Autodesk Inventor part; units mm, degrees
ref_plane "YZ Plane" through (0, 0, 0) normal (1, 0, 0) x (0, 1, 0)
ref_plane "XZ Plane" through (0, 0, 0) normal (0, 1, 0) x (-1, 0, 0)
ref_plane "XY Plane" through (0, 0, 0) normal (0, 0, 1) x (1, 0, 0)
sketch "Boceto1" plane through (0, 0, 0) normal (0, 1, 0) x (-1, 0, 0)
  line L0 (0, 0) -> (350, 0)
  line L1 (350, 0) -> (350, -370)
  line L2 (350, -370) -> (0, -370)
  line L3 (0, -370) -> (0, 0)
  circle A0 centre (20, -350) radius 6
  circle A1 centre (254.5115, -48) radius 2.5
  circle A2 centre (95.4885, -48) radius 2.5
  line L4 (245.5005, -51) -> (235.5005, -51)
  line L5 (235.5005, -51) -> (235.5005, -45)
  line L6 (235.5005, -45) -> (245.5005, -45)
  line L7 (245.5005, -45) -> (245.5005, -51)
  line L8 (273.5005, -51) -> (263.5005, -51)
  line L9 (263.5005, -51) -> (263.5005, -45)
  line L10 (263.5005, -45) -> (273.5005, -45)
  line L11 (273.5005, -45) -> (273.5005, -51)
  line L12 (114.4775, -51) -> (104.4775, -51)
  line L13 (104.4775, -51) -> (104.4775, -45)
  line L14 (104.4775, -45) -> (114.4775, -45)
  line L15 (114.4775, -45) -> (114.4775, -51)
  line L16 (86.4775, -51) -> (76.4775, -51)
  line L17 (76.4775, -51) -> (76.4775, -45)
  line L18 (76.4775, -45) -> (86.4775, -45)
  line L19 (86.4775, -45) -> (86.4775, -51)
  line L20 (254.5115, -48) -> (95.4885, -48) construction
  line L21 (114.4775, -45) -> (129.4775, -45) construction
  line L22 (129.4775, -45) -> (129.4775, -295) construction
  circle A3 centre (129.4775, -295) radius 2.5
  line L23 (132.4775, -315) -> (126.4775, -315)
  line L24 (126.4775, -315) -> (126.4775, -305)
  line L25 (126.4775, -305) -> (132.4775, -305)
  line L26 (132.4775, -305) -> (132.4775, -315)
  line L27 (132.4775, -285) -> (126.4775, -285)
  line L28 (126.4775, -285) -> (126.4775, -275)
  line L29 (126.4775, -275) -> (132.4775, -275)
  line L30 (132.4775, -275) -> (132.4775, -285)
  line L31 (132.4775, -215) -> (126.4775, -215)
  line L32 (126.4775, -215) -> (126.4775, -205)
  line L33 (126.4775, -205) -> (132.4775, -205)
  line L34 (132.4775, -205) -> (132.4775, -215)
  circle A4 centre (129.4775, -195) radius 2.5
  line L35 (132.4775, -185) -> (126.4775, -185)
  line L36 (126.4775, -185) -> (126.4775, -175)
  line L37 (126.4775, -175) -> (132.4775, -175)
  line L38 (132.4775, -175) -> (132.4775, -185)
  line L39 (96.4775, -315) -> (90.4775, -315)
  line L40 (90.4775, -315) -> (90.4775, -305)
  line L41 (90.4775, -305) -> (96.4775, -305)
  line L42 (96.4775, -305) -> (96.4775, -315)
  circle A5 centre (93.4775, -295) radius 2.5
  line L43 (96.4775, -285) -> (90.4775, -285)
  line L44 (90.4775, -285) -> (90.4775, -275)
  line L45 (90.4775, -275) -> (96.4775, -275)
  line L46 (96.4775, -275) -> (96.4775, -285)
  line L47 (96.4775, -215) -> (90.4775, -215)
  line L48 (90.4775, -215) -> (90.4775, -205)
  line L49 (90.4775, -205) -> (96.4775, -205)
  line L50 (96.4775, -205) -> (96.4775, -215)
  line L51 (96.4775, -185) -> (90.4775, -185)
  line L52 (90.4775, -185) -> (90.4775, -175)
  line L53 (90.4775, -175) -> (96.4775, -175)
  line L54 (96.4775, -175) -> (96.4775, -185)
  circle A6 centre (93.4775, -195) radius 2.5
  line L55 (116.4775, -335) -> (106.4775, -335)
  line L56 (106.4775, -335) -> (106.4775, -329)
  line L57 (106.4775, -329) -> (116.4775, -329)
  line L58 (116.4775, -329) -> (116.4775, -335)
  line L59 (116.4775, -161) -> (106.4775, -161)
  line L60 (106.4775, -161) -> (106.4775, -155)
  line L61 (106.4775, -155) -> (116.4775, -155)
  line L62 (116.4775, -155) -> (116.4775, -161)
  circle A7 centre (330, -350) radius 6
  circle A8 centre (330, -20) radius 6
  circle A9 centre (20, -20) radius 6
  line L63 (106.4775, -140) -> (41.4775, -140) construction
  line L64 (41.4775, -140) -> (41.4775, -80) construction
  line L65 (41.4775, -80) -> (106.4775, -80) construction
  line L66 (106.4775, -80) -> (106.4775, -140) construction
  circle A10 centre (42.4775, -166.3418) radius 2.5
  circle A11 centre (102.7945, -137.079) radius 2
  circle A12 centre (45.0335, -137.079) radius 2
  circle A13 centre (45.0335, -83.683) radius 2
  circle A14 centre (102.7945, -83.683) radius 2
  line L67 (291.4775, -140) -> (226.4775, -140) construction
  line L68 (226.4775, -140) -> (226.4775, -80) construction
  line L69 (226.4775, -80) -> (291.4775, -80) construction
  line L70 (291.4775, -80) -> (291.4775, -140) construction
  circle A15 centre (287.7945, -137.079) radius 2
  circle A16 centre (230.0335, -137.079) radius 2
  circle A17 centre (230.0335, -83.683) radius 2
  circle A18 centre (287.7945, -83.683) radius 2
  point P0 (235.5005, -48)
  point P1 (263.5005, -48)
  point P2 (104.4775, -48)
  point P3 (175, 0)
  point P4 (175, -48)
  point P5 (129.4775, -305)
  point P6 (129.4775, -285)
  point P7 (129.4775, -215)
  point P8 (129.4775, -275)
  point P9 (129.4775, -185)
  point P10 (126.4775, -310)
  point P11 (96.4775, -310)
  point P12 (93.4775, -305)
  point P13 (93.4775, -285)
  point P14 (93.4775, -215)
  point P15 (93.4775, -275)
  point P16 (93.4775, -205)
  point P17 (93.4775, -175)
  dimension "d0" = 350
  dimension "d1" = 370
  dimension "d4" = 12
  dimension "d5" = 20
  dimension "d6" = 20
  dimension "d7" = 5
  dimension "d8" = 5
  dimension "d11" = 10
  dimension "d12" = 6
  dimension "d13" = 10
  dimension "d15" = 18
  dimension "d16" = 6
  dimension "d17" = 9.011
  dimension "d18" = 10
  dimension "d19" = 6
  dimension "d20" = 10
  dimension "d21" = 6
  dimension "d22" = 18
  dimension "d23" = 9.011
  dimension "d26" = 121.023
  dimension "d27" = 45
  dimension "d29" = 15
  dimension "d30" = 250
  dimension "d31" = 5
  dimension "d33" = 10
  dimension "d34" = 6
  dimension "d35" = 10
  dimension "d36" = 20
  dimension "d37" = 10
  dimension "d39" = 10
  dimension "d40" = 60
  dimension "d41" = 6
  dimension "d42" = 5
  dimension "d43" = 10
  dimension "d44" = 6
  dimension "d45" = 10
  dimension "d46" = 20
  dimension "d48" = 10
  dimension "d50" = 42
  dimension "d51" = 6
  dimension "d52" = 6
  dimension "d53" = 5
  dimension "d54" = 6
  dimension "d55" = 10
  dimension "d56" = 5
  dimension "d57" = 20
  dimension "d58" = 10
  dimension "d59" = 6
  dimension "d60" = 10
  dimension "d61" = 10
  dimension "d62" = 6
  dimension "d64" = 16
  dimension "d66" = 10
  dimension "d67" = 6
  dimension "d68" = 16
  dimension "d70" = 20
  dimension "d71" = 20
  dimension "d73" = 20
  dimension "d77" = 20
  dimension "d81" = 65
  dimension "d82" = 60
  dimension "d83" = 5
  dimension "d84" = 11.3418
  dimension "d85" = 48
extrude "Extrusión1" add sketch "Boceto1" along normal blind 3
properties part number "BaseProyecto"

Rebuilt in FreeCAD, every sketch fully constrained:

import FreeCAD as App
import Part
import Sketcher

V = App.Vector

doc = App.newDocument("Part")
body = doc.addObject("PartDesign::Body", "Body")

sketch1 = doc.addObject("Sketcher::SketchObject", "Sketch")
body.addObject(sketch1)
sketch1.AttachmentSupport = (doc.XZ_Plane, [""])
sketch1.MapMode = "FlatFace"
sketch1.addGeometry([
    Part.LineSegment(V(-350, 0, 0), V(0, 0, 0)),
    Part.LineSegment(V(0, 0, 0), V(0, -370, 0)),
    Part.LineSegment(V(0, -370, 0), V(-350, -370, 0)),
    Part.LineSegment(V(-350, -370, 0), V(-350, 0, 0)),
    Part.Circle(V(-20, -350, 0), V(0, 0, 1), 6),
    Part.LineSegment(V(-116.5, -329, 0), V(-116.5, -335, 0)),
    Part.LineSegment(V(-116.5, -335, 0), V(-106.5, -335, 0)),
    Part.LineSegment(V(-106.5, -335, 0), V(-106.5, -329, 0)),
    Part.LineSegment(V(-106.5, -329, 0), V(-116.5, -329, 0)),
    Part.LineSegment(V(-96.5, -305, 0), V(-96.5, -315, 0)),
    Part.LineSegment(V(-96.5, -315, 0), V(-90.5, -315, 0)),
    Part.LineSegment(V(-90.5, -315, 0), V(-90.5, -305, 0)),
    Part.LineSegment(V(-90.5, -305, 0), V(-96.5, -305, 0)),
    Part.LineSegment(V(-132.5, -305, 0), V(-132.5, -315, 0)),
    Part.LineSegment(V(-132.5, -315, 0), V(-126.5, -315, 0)),
    Part.LineSegment(V(-126.5, -315, 0), V(-126.5, -305, 0)),
    Part.LineSegment(V(-126.5, -305, 0), V(-132.5, -305, 0)),
    Part.Circle(V(-93.5, -295, 0), V(0, 0, 1), 2.5),
    Part.LineSegment(V(-96.5, -275, 0), V(-96.5, -285, 0)),
    Part.LineSegment(V(-96.5, -285, 0), V(-90.5, -285, 0)),
    Part.LineSegment(V(-90.5, -285, 0), V(-90.5, -275, 0)),
    Part.LineSegment(V(-90.5, -275, 0), V(-96.5, -275, 0)),
    Part.Circle(V(-129.5, -295, 0), V(0, 0, 1), 2.5),
    Part.LineSegment(V(-132.5, -275, 0), V(-132.5, -285, 0)),
    Part.LineSegment(V(-132.5, -285, 0), V(-126.5, -285, 0)),
    Part.LineSegment(V(-126.5, -285, 0), V(-126.5, -275, 0)),
    Part.LineSegment(V(-126.5, -275, 0), V(-132.5, -275, 0)),
    Part.LineSegment(V(-96.5, -205, 0), V(-96.5, -215, 0)),
    Part.LineSegment(V(-96.5, -215, 0), V(-90.5, -215, 0)),
    Part.LineSegment(V(-90.5, -215, 0), V(-90.5, -205, 0)),
    Part.LineSegment(V(-90.5, -205, 0), V(-96.5, -205, 0)),
    Part.LineSegment(V(-132.5, -205, 0), V(-132.5, -215, 0)),
    Part.LineSegment(V(-132.5, -215, 0), V(-126.5, -215, 0)),
    Part.LineSegment(V(-126.5, -215, 0), V(-126.5, -205, 0)),
    Part.LineSegment(V(-126.5, -205, 0), V(-132.5, -205, 0)),
    Part.Circle(V(-93.5, -195, 0), V(0, 0, 1), 2.5),
    Part.Circle(V(-129.5, -195, 0), V(0, 0, 1), 2.5),
    Part.Circle(V(-330, -350, 0), V(0, 0, 1), 6),
    Part.Circle(V(-42.5, -166.3, 0), V(0, 0, 1), 2.5),
    Part.Circle(V(-45, -137.1, 0), V(0, 0, 1), 2),
    Part.LineSegment(V(-96.5, -175, 0), V(-96.5, -185, 0)),
    Part.LineSegment(V(-96.5, -185, 0), V(-90.5, -185, 0)),
    Part.LineSegment(V(-90.5, -185, 0), V(-90.5, -175, 0)),
    Part.LineSegment(V(-90.5, -175, 0), V(-96.5, -175, 0)),
    Part.LineSegment(V(-132.5, -175, 0), V(-132.5, -185, 0)),
    Part.LineSegment(V(-132.5, -185, 0), V(-126.5, -185, 0)),
    Part.LineSegment(V(-126.5, -185, 0), V(-126.5, -175, 0)),
    Part.LineSegment(V(-126.5, -175, 0), V(-132.5, -175, 0)),
    Part.LineSegment(V(-116.5, -155, 0), V(-116.5, -161, 0)),
    Part.LineSegment(V(-116.5, -161, 0), V(-106.5, -161, 0)),
    Part.LineSegment(V(-106.5, -161, 0), V(-106.5, -155, 0)),
    Part.LineSegment(V(-106.5, -155, 0), V(-116.5, -155, 0)),
    Part.Circle(V(-102.8, -137.1, 0), V(0, 0, 1), 2),
    Part.Circle(V(-45, -83.7, 0), V(0, 0, 1), 2),
    Part.LineSegment(V(-86.5, -45, 0), V(-86.5, -51, 0)),
    Part.LineSegment(V(-86.5, -51, 0), V(-76.5, -51, 0)),
    Part.LineSegment(V(-76.5, -51, 0), V(-76.5, -45, 0)),
    Part.LineSegment(V(-76.5, -45, 0), V(-86.5, -45, 0)),
    Part.Circle(V(-20, -20, 0), V(0, 0, 1), 6),
    Part.Circle(V(-102.8, -83.7, 0), V(0, 0, 1), 2),
    Part.Circle(V(-95.5, -48, 0), V(0, 0, 1), 2.5),
    Part.LineSegment(V(-114.5, -45, 0), V(-114.5, -51, 0)),
    Part.LineSegment(V(-114.5, -51, 0), V(-104.5, -51, 0)),
    Part.LineSegment(V(-104.5, -51, 0), V(-104.5, -45, 0)),
    Part.LineSegment(V(-104.5, -45, 0), V(-114.5, -45, 0)),
    Part.Circle(V(-230, -137.1, 0), V(0, 0, 1), 2),
    Part.Circle(V(-287.8, -137.1, 0), V(0, 0, 1), 2),
    Part.Circle(V(-230, -83.7, 0), V(0, 0, 1), 2),
    Part.LineSegment(V(-245.5, -45, 0), V(-245.5, -51, 0)),
    Part.LineSegment(V(-245.5, -51, 0), V(-235.5, -51, 0)),
    Part.LineSegment(V(-235.5, -51, 0), V(-235.5, -45, 0)),
    Part.LineSegment(V(-235.5, -45, 0), V(-245.5, -45, 0)),
    Part.Circle(V(-254.5, -48, 0), V(0, 0, 1), 2.5),
    Part.Circle(V(-287.8, -83.7, 0), V(0, 0, 1), 2),
    Part.LineSegment(V(-273.5, -45, 0), V(-273.5, -51, 0)),
    Part.LineSegment(V(-273.5, -51, 0), V(-263.5, -51, 0)),
    Part.LineSegment(V(-263.5, -51, 0), V(-263.5, -45, 0)),
    Part.LineSegment(V(-263.5, -45, 0), V(-273.5, -45, 0)),
    Part.Circle(V(-330, -20, 0), V(0, 0, 1), 6),
], False)
sketch1.addConstraint([
    Sketcher.Constraint("Coincident", 0, 2, 1, 1),
    Sketcher.Constraint("Coincident", 1, 2, 2, 1),
    Sketcher.Constraint("Coincident", 2, 2, 3, 1),
    Sketcher.Constraint("Coincident", 3, 2, 0, 1),
    Sketcher.Constraint("Coincident", 5, 2, 6, 1),
    Sketcher.Constraint("Coincident", 6, 2, 7, 1),
    Sketcher.Constraint("Coincident", 7, 2, 8, 1),
    Sketcher.Constraint("Coincident", 8, 2, 5, 1),
    Sketcher.Constraint("Coincident", 9, 2, 10, 1),
    Sketcher.Constraint("Coincident", 10, 2, 11, 1),
    Sketcher.Constraint("Coincident", 11, 2, 12, 1),
    Sketcher.Constraint("Coincident", 12, 2, 9, 1),
    Sketcher.Constraint("Coincident", 13, 2, 14, 1),
    Sketcher.Constraint("Coincident", 14, 2, 15, 1),
    Sketcher.Constraint("Coincident", 15, 2, 16, 1),
    Sketcher.Constraint("Coincident", 16, 2, 13, 1),
    Sketcher.Constraint("Coincident", 18, 2, 19, 1),
    Sketcher.Constraint("Coincident", 19, 2, 20, 1),
    Sketcher.Constraint("Coincident", 20, 2, 21, 1),
    Sketcher.Constraint("Coincident", 21, 2, 18, 1),
    Sketcher.Constraint("Coincident", 23, 2, 24, 1),
    Sketcher.Constraint("Coincident", 24, 2, 25, 1),
    Sketcher.Constraint("Coincident", 25, 2, 26, 1),
    Sketcher.Constraint("Coincident", 26, 2, 23, 1),
    Sketcher.Constraint("Coincident", 27, 2, 28, 1),
    Sketcher.Constraint("Coincident", 28, 2, 29, 1),
    Sketcher.Constraint("Coincident", 29, 2, 30, 1),
    Sketcher.Constraint("Coincident", 30, 2, 27, 1),
    Sketcher.Constraint("Coincident", 31, 2, 32, 1),
    Sketcher.Constraint("Coincident", 32, 2, 33, 1),
    Sketcher.Constraint("Coincident", 33, 2, 34, 1),
    Sketcher.Constraint("Coincident", 34, 2, 31, 1),
    Sketcher.Constraint("Coincident", 40, 2, 41, 1),
    Sketcher.Constraint("Coincident", 41, 2, 42, 1),
    Sketcher.Constraint("Coincident", 42, 2, 43, 1),
    Sketcher.Constraint("Coincident", 43, 2, 40, 1),
    Sketcher.Constraint("Coincident", 44, 2, 45, 1),
    Sketcher.Constraint("Coincident", 45, 2, 46, 1),
    Sketcher.Constraint("Coincident", 46, 2, 47, 1),
    Sketcher.Constraint("Coincident", 47, 2, 44, 1),
    Sketcher.Constraint("Coincident", 48, 2, 49, 1),
    Sketcher.Constraint("Coincident", 49, 2, 50, 1),
    Sketcher.Constraint("Coincident", 50, 2, 51, 1),
    Sketcher.Constraint("Coincident", 51, 2, 48, 1),
    Sketcher.Constraint("Coincident", 54, 2, 55, 1),
    Sketcher.Constraint("Coincident", 55, 2, 56, 1),
    Sketcher.Constraint("Coincident", 56, 2, 57, 1),
    Sketcher.Constraint("Coincident", 57, 2, 54, 1),
    Sketcher.Constraint("Coincident", 61, 2, 62, 1),
    Sketcher.Constraint("Coincident", 62, 2, 63, 1),
    Sketcher.Constraint("Coincident", 63, 2, 64, 1),
    Sketcher.Constraint("Coincident", 64, 2, 61, 1),
    Sketcher.Constraint("Coincident", 68, 2, 69, 1),
    Sketcher.Constraint("Coincident", 69, 2, 70, 1),
    Sketcher.Constraint("Coincident", 70, 2, 71, 1),
    Sketcher.Constraint("Coincident", 71, 2, 68, 1),
    Sketcher.Constraint("Coincident", 74, 2, 75, 1),
    Sketcher.Constraint("Coincident", 75, 2, 76, 1),
    Sketcher.Constraint("Coincident", 76, 2, 77, 1),
    Sketcher.Constraint("Coincident", 77, 2, 74, 1),
    Sketcher.Constraint("Horizontal", 0),
    Sketcher.Constraint("Vertical", 1),
    Sketcher.Constraint("Horizontal", 2),
    Sketcher.Constraint("Vertical", 3),
    Sketcher.Constraint("Vertical", 5),
    Sketcher.Constraint("Horizontal", 6),
    Sketcher.Constraint("Vertical", 7),
    Sketcher.Constraint("Horizontal", 8),
    Sketcher.Constraint("Vertical", 9),
    Sketcher.Constraint("Horizontal", 10),
    Sketcher.Constraint("Vertical", 11),
    Sketcher.Constraint("Horizontal", 12),
    Sketcher.Constraint("Vertical", 13),
    Sketcher.Constraint("Horizontal", 14),
    Sketcher.Constraint("Vertical", 15),
    Sketcher.Constraint("Horizontal", 16),
    Sketcher.Constraint("Vertical", 18),
    Sketcher.Constraint("Horizontal", 19),
    Sketcher.Constraint("Vertical", 20),
    Sketcher.Constraint("Horizontal", 21),
    Sketcher.Constraint("Vertical", 23),
    Sketcher.Constraint("Horizontal", 24),
    Sketcher.Constraint("Vertical", 25),
    Sketcher.Constraint("Horizontal", 26),
    Sketcher.Constraint("Vertical", 27),
    Sketcher.Constraint("Horizontal", 28),
    Sketcher.Constraint("Vertical", 29),
    Sketcher.Constraint("Horizontal", 30),
    Sketcher.Constraint("Vertical", 31),
    Sketcher.Constraint("Horizontal", 32),
    Sketcher.Constraint("Vertical", 33),
    Sketcher.Constraint("Horizontal", 34),
    Sketcher.Constraint("Vertical", 40),
    Sketcher.Constraint("Horizontal", 41),
    Sketcher.Constraint("Vertical", 42),
    Sketcher.Constraint("Horizontal", 43),
    Sketcher.Constraint("Vertical", 44),
    Sketcher.Constraint("Horizontal", 45),
    Sketcher.Constraint("Vertical", 46),
    Sketcher.Constraint("Horizontal", 47),
    Sketcher.Constraint("Vertical", 48),
    Sketcher.Constraint("Horizontal", 49),
    Sketcher.Constraint("Vertical", 50),
    Sketcher.Constraint("Horizontal", 51),
    Sketcher.Constraint("Vertical", 54),
    Sketcher.Constraint("Horizontal", 55),
    Sketcher.Constraint("Vertical", 56),
    Sketcher.Constraint("Horizontal", 57),
    Sketcher.Constraint("Vertical", 61),
    Sketcher.Constraint("Horizontal", 62),
    Sketcher.Constraint("Vertical", 63),
    Sketcher.Constraint("Horizontal", 64),
    Sketcher.Constraint("Vertical", 68),
    Sketcher.Constraint("Horizontal", 69),
    Sketcher.Constraint("Vertical", 70),
    Sketcher.Constraint("Horizontal", 71),
    Sketcher.Constraint("Vertical", 74),
    Sketcher.Constraint("Horizontal", 75),
    Sketcher.Constraint("Vertical", 76),
    Sketcher.Constraint("Horizontal", 77),
    Sketcher.Constraint("Coincident", 0, 2, -1, 1),
    Sketcher.Constraint("Equal", 17, 22),
    Sketcher.Constraint("Equal", 22, 35),
    Sketcher.Constraint("Equal", 35, 36),
    Sketcher.Constraint("Equal", 4, 37),
    Sketcher.Constraint("Equal", 36, 38),
    Sketcher.Constraint("Equal", 39, 52),
    Sketcher.Constraint("Equal", 52, 53),
    Sketcher.Constraint("Equal", 37, 58),
    Sketcher.Constraint("Equal", 53, 59),
    Sketcher.Constraint("Equal", 38, 60),
    Sketcher.Constraint("Equal", 59, 65),
    Sketcher.Constraint("Equal", 65, 66),
    Sketcher.Constraint("Equal", 66, 67),
    Sketcher.Constraint("Equal", 60, 72),
    Sketcher.Constraint("Equal", 67, 73),
    Sketcher.Constraint("Equal", 58, 78),
    Sketcher.Constraint("Horizontal", 17, 3, 22, 3),
    Sketcher.Constraint("Horizontal", 35, 3, 36, 3),
    Sketcher.Constraint("Horizontal", 4, 3, 37, 3),
    Sketcher.Constraint("Horizontal", 39, 3, 52, 3),
    Sketcher.Constraint("Horizontal", 53, 3, 59, 3),
    Sketcher.Constraint("Horizontal", 52, 3, 65, 3),
    Sketcher.Constraint("Horizontal", 65, 3, 66, 3),
    Sketcher.Constraint("Horizontal", 59, 3, 67, 3),
    Sketcher.Constraint("Horizontal", 60, 3, 72, 3),
    Sketcher.Constraint("Horizontal", 67, 3, 73, 3),
    Sketcher.Constraint("Horizontal", 58, 3, 78, 3),
    Sketcher.Constraint("Horizontal", 10, 2, 13, 2),
    Sketcher.Constraint("Horizontal", 12, 2, 15, 2),
    Sketcher.Constraint("Horizontal", 19, 2, 23, 2),
    Sketcher.Constraint("Horizontal", 21, 2, 25, 2),
    Sketcher.Constraint("Horizontal", 28, 2, 31, 2),
    Sketcher.Constraint("Horizontal", 30, 2, 33, 2),
    Sketcher.Constraint("Horizontal", 41, 2, 44, 2),
    Sketcher.Constraint("Horizontal", 43, 2, 46, 2),
    Sketcher.Constraint("Horizontal", 55, 2, 61, 2),
    Sketcher.Constraint("Horizontal", 57, 2, 63, 2),
    Sketcher.Constraint("Horizontal", 62, 2, 68, 2),
    Sketcher.Constraint("Horizontal", 64, 2, 70, 2),
    Sketcher.Constraint("Horizontal", 69, 2, 74, 2),
    Sketcher.Constraint("Horizontal", 71, 2, 76, 2),
    Sketcher.Constraint("Vertical", 17, 3, 35, 3),
    Sketcher.Constraint("Vertical", 22, 3, 36, 3),
    Sketcher.Constraint("Vertical", 39, 3, 53, 3),
    Sketcher.Constraint("Vertical", 4, 3, 58, 3),
    Sketcher.Constraint("Vertical", 52, 3, 59, 3),
    Sketcher.Constraint("Vertical", 65, 3, 67, 3),
    Sketcher.Constraint("Vertical", 66, 3, 73, 3),
    Sketcher.Constraint("Vertical", 37, 3, 78, 3),
    Sketcher.Constraint("Vertical", 12, 2, 18, 2),
    Sketcher.Constraint("Vertical", 11, 2, 19, 2),
    Sketcher.Constraint("Vertical", 16, 2, 23, 2),
    Sketcher.Constraint("Vertical", 15, 2, 24, 2),
    Sketcher.Constraint("Vertical", 21, 2, 27, 2),
    Sketcher.Constraint("Vertical", 20, 2, 28, 2),
    Sketcher.Constraint("Vertical", 26, 2, 31, 2),
    Sketcher.Constraint("Vertical", 25, 2, 32, 2),
    Sketcher.Constraint("Vertical", 30, 2, 40, 2),
    Sketcher.Constraint("Vertical", 29, 2, 41, 2),
    Sketcher.Constraint("Vertical", 34, 2, 44, 2),
    Sketcher.Constraint("Vertical", 33, 2, 45, 2),
    Sketcher.Constraint("Vertical", 8, 2, 48, 2),
    Sketcher.Constraint("Vertical", 7, 2, 49, 2),
    Sketcher.Constraint("Equal", 12, 14),
    Sketcher.Constraint("Equal", 51, 55),
    Sketcher.Constraint("Equal", 57, 62),
    Sketcher.Constraint("Equal", 64, 69),
    Sketcher.Constraint("Equal", 71, 75),
    Sketcher.Constraint("Equal", 47, 5),
    Sketcher.Constraint("Equal", 77, 9),
    Sketcher.Constraint("Equal", 15, 18),
    Sketcher.Constraint("Equal", 25, 27),
    Sketcher.Constraint("Equal", 33, 40),
    Sketcher.Constraint("Equal", 7, 48),
    Sketcher.Constraint("Equal", 50, 54),
    Sketcher.Constraint("Diameter", 4, 12.0),
    Sketcher.Constraint("Diameter", 17, 5.0),
    Sketcher.Constraint("DistanceX", 0, 1, 0, 2, 350.0),
    Sketcher.Constraint("DistanceX", 6, 1, 6, 2, 10.0),
    Sketcher.Constraint("DistanceX", 10, 1, 10, 2, 6.0),
    Sketcher.Constraint("DistanceY", 1, 2, 1, 1, 370.0),
    Sketcher.Constraint("Diameter", 39, 4.0),
    Sketcher.Constraint("DistanceX", 4, 3, -1, 1, 20.0),
    Sketcher.Constraint("DistanceY", 4, 3, -1, 1, 350.0),
    Sketcher.Constraint("DistanceY", 58, 3, -1, 1, 20.0),
    Sketcher.Constraint("DistanceY", 60, 3, -1, 1, 48.0),
    Sketcher.Constraint("DistanceY", 56, 2, -1, 1, 45.0),
    Sketcher.Constraint("DistanceY", 17, 3, -1, 1, 295.0),
    Sketcher.Constraint("DistanceY", 35, 3, -1, 1, 195.0),
    Sketcher.Constraint("DistanceX", 37, 3, -1, 1, 330.0),
    Sketcher.Constraint("DistanceY", 5, 2, -1, 1, 335.0),
    Sketcher.Constraint("DistanceY", 9, 2, -1, 1, 315.0),
    Sketcher.Constraint("DistanceY", 18, 2, -1, 1, 285.0),
    Sketcher.Constraint("DistanceY", 27, 2, -1, 1, 215.0),
    Sketcher.Constraint("DistanceY", 40, 2, -1, 1, 185.0),
    Sketcher.Constraint("DistanceY", 48, 2, -1, 1, 161.0),
    Sketcher.Constraint("DistanceY", 39, 3, -1, 1, 137.079),
    Sketcher.Constraint("DistanceY", 53, 3, -1, 1, 83.683),
    Sketcher.Constraint("DistanceX", 17, 3, -1, 1, 93.4775),
    Sketcher.Constraint("DistanceX", 22, 3, -1, 1, 129.4775),
    Sketcher.Constraint("DistanceX", 38, 3, -1, 1, 42.4775),
    Sketcher.Constraint("DistanceY", 38, 3, -1, 1, 166.3418),
    Sketcher.Constraint("DistanceX", 39, 3, -1, 1, 45.0335),
    Sketcher.Constraint("DistanceX", 52, 3, -1, 1, 102.7945),
    Sketcher.Constraint("DistanceX", 60, 3, -1, 1, 95.4885),
    Sketcher.Constraint("DistanceX", 65, 3, -1, 1, 230.0335),
    Sketcher.Constraint("DistanceX", 66, 3, -1, 1, 287.7945),
    Sketcher.Constraint("DistanceX", 72, 3, -1, 1, 254.5115),
    Sketcher.Constraint("DistanceX", 5, 2, -1, 1, 116.4775),
    Sketcher.Constraint("DistanceX", 9, 2, -1, 1, 96.4775),
    Sketcher.Constraint("DistanceX", 13, 2, -1, 1, 132.4775),
    Sketcher.Constraint("DistanceX", 54, 2, -1, 1, 86.4775),
    Sketcher.Constraint("DistanceX", 61, 2, -1, 1, 114.4775),
    Sketcher.Constraint("DistanceX", 68, 2, -1, 1, 245.5005),
    Sketcher.Constraint("DistanceX", 74, 2, -1, 1, 273.5005),
])
pad1 = doc.addObject("PartDesign::Pad", "Pad")
body.addObject(pad1)
pad1.Profile = sketch1
pad1.Length = 3
pad1.Reversed = True

doc.recompute()
